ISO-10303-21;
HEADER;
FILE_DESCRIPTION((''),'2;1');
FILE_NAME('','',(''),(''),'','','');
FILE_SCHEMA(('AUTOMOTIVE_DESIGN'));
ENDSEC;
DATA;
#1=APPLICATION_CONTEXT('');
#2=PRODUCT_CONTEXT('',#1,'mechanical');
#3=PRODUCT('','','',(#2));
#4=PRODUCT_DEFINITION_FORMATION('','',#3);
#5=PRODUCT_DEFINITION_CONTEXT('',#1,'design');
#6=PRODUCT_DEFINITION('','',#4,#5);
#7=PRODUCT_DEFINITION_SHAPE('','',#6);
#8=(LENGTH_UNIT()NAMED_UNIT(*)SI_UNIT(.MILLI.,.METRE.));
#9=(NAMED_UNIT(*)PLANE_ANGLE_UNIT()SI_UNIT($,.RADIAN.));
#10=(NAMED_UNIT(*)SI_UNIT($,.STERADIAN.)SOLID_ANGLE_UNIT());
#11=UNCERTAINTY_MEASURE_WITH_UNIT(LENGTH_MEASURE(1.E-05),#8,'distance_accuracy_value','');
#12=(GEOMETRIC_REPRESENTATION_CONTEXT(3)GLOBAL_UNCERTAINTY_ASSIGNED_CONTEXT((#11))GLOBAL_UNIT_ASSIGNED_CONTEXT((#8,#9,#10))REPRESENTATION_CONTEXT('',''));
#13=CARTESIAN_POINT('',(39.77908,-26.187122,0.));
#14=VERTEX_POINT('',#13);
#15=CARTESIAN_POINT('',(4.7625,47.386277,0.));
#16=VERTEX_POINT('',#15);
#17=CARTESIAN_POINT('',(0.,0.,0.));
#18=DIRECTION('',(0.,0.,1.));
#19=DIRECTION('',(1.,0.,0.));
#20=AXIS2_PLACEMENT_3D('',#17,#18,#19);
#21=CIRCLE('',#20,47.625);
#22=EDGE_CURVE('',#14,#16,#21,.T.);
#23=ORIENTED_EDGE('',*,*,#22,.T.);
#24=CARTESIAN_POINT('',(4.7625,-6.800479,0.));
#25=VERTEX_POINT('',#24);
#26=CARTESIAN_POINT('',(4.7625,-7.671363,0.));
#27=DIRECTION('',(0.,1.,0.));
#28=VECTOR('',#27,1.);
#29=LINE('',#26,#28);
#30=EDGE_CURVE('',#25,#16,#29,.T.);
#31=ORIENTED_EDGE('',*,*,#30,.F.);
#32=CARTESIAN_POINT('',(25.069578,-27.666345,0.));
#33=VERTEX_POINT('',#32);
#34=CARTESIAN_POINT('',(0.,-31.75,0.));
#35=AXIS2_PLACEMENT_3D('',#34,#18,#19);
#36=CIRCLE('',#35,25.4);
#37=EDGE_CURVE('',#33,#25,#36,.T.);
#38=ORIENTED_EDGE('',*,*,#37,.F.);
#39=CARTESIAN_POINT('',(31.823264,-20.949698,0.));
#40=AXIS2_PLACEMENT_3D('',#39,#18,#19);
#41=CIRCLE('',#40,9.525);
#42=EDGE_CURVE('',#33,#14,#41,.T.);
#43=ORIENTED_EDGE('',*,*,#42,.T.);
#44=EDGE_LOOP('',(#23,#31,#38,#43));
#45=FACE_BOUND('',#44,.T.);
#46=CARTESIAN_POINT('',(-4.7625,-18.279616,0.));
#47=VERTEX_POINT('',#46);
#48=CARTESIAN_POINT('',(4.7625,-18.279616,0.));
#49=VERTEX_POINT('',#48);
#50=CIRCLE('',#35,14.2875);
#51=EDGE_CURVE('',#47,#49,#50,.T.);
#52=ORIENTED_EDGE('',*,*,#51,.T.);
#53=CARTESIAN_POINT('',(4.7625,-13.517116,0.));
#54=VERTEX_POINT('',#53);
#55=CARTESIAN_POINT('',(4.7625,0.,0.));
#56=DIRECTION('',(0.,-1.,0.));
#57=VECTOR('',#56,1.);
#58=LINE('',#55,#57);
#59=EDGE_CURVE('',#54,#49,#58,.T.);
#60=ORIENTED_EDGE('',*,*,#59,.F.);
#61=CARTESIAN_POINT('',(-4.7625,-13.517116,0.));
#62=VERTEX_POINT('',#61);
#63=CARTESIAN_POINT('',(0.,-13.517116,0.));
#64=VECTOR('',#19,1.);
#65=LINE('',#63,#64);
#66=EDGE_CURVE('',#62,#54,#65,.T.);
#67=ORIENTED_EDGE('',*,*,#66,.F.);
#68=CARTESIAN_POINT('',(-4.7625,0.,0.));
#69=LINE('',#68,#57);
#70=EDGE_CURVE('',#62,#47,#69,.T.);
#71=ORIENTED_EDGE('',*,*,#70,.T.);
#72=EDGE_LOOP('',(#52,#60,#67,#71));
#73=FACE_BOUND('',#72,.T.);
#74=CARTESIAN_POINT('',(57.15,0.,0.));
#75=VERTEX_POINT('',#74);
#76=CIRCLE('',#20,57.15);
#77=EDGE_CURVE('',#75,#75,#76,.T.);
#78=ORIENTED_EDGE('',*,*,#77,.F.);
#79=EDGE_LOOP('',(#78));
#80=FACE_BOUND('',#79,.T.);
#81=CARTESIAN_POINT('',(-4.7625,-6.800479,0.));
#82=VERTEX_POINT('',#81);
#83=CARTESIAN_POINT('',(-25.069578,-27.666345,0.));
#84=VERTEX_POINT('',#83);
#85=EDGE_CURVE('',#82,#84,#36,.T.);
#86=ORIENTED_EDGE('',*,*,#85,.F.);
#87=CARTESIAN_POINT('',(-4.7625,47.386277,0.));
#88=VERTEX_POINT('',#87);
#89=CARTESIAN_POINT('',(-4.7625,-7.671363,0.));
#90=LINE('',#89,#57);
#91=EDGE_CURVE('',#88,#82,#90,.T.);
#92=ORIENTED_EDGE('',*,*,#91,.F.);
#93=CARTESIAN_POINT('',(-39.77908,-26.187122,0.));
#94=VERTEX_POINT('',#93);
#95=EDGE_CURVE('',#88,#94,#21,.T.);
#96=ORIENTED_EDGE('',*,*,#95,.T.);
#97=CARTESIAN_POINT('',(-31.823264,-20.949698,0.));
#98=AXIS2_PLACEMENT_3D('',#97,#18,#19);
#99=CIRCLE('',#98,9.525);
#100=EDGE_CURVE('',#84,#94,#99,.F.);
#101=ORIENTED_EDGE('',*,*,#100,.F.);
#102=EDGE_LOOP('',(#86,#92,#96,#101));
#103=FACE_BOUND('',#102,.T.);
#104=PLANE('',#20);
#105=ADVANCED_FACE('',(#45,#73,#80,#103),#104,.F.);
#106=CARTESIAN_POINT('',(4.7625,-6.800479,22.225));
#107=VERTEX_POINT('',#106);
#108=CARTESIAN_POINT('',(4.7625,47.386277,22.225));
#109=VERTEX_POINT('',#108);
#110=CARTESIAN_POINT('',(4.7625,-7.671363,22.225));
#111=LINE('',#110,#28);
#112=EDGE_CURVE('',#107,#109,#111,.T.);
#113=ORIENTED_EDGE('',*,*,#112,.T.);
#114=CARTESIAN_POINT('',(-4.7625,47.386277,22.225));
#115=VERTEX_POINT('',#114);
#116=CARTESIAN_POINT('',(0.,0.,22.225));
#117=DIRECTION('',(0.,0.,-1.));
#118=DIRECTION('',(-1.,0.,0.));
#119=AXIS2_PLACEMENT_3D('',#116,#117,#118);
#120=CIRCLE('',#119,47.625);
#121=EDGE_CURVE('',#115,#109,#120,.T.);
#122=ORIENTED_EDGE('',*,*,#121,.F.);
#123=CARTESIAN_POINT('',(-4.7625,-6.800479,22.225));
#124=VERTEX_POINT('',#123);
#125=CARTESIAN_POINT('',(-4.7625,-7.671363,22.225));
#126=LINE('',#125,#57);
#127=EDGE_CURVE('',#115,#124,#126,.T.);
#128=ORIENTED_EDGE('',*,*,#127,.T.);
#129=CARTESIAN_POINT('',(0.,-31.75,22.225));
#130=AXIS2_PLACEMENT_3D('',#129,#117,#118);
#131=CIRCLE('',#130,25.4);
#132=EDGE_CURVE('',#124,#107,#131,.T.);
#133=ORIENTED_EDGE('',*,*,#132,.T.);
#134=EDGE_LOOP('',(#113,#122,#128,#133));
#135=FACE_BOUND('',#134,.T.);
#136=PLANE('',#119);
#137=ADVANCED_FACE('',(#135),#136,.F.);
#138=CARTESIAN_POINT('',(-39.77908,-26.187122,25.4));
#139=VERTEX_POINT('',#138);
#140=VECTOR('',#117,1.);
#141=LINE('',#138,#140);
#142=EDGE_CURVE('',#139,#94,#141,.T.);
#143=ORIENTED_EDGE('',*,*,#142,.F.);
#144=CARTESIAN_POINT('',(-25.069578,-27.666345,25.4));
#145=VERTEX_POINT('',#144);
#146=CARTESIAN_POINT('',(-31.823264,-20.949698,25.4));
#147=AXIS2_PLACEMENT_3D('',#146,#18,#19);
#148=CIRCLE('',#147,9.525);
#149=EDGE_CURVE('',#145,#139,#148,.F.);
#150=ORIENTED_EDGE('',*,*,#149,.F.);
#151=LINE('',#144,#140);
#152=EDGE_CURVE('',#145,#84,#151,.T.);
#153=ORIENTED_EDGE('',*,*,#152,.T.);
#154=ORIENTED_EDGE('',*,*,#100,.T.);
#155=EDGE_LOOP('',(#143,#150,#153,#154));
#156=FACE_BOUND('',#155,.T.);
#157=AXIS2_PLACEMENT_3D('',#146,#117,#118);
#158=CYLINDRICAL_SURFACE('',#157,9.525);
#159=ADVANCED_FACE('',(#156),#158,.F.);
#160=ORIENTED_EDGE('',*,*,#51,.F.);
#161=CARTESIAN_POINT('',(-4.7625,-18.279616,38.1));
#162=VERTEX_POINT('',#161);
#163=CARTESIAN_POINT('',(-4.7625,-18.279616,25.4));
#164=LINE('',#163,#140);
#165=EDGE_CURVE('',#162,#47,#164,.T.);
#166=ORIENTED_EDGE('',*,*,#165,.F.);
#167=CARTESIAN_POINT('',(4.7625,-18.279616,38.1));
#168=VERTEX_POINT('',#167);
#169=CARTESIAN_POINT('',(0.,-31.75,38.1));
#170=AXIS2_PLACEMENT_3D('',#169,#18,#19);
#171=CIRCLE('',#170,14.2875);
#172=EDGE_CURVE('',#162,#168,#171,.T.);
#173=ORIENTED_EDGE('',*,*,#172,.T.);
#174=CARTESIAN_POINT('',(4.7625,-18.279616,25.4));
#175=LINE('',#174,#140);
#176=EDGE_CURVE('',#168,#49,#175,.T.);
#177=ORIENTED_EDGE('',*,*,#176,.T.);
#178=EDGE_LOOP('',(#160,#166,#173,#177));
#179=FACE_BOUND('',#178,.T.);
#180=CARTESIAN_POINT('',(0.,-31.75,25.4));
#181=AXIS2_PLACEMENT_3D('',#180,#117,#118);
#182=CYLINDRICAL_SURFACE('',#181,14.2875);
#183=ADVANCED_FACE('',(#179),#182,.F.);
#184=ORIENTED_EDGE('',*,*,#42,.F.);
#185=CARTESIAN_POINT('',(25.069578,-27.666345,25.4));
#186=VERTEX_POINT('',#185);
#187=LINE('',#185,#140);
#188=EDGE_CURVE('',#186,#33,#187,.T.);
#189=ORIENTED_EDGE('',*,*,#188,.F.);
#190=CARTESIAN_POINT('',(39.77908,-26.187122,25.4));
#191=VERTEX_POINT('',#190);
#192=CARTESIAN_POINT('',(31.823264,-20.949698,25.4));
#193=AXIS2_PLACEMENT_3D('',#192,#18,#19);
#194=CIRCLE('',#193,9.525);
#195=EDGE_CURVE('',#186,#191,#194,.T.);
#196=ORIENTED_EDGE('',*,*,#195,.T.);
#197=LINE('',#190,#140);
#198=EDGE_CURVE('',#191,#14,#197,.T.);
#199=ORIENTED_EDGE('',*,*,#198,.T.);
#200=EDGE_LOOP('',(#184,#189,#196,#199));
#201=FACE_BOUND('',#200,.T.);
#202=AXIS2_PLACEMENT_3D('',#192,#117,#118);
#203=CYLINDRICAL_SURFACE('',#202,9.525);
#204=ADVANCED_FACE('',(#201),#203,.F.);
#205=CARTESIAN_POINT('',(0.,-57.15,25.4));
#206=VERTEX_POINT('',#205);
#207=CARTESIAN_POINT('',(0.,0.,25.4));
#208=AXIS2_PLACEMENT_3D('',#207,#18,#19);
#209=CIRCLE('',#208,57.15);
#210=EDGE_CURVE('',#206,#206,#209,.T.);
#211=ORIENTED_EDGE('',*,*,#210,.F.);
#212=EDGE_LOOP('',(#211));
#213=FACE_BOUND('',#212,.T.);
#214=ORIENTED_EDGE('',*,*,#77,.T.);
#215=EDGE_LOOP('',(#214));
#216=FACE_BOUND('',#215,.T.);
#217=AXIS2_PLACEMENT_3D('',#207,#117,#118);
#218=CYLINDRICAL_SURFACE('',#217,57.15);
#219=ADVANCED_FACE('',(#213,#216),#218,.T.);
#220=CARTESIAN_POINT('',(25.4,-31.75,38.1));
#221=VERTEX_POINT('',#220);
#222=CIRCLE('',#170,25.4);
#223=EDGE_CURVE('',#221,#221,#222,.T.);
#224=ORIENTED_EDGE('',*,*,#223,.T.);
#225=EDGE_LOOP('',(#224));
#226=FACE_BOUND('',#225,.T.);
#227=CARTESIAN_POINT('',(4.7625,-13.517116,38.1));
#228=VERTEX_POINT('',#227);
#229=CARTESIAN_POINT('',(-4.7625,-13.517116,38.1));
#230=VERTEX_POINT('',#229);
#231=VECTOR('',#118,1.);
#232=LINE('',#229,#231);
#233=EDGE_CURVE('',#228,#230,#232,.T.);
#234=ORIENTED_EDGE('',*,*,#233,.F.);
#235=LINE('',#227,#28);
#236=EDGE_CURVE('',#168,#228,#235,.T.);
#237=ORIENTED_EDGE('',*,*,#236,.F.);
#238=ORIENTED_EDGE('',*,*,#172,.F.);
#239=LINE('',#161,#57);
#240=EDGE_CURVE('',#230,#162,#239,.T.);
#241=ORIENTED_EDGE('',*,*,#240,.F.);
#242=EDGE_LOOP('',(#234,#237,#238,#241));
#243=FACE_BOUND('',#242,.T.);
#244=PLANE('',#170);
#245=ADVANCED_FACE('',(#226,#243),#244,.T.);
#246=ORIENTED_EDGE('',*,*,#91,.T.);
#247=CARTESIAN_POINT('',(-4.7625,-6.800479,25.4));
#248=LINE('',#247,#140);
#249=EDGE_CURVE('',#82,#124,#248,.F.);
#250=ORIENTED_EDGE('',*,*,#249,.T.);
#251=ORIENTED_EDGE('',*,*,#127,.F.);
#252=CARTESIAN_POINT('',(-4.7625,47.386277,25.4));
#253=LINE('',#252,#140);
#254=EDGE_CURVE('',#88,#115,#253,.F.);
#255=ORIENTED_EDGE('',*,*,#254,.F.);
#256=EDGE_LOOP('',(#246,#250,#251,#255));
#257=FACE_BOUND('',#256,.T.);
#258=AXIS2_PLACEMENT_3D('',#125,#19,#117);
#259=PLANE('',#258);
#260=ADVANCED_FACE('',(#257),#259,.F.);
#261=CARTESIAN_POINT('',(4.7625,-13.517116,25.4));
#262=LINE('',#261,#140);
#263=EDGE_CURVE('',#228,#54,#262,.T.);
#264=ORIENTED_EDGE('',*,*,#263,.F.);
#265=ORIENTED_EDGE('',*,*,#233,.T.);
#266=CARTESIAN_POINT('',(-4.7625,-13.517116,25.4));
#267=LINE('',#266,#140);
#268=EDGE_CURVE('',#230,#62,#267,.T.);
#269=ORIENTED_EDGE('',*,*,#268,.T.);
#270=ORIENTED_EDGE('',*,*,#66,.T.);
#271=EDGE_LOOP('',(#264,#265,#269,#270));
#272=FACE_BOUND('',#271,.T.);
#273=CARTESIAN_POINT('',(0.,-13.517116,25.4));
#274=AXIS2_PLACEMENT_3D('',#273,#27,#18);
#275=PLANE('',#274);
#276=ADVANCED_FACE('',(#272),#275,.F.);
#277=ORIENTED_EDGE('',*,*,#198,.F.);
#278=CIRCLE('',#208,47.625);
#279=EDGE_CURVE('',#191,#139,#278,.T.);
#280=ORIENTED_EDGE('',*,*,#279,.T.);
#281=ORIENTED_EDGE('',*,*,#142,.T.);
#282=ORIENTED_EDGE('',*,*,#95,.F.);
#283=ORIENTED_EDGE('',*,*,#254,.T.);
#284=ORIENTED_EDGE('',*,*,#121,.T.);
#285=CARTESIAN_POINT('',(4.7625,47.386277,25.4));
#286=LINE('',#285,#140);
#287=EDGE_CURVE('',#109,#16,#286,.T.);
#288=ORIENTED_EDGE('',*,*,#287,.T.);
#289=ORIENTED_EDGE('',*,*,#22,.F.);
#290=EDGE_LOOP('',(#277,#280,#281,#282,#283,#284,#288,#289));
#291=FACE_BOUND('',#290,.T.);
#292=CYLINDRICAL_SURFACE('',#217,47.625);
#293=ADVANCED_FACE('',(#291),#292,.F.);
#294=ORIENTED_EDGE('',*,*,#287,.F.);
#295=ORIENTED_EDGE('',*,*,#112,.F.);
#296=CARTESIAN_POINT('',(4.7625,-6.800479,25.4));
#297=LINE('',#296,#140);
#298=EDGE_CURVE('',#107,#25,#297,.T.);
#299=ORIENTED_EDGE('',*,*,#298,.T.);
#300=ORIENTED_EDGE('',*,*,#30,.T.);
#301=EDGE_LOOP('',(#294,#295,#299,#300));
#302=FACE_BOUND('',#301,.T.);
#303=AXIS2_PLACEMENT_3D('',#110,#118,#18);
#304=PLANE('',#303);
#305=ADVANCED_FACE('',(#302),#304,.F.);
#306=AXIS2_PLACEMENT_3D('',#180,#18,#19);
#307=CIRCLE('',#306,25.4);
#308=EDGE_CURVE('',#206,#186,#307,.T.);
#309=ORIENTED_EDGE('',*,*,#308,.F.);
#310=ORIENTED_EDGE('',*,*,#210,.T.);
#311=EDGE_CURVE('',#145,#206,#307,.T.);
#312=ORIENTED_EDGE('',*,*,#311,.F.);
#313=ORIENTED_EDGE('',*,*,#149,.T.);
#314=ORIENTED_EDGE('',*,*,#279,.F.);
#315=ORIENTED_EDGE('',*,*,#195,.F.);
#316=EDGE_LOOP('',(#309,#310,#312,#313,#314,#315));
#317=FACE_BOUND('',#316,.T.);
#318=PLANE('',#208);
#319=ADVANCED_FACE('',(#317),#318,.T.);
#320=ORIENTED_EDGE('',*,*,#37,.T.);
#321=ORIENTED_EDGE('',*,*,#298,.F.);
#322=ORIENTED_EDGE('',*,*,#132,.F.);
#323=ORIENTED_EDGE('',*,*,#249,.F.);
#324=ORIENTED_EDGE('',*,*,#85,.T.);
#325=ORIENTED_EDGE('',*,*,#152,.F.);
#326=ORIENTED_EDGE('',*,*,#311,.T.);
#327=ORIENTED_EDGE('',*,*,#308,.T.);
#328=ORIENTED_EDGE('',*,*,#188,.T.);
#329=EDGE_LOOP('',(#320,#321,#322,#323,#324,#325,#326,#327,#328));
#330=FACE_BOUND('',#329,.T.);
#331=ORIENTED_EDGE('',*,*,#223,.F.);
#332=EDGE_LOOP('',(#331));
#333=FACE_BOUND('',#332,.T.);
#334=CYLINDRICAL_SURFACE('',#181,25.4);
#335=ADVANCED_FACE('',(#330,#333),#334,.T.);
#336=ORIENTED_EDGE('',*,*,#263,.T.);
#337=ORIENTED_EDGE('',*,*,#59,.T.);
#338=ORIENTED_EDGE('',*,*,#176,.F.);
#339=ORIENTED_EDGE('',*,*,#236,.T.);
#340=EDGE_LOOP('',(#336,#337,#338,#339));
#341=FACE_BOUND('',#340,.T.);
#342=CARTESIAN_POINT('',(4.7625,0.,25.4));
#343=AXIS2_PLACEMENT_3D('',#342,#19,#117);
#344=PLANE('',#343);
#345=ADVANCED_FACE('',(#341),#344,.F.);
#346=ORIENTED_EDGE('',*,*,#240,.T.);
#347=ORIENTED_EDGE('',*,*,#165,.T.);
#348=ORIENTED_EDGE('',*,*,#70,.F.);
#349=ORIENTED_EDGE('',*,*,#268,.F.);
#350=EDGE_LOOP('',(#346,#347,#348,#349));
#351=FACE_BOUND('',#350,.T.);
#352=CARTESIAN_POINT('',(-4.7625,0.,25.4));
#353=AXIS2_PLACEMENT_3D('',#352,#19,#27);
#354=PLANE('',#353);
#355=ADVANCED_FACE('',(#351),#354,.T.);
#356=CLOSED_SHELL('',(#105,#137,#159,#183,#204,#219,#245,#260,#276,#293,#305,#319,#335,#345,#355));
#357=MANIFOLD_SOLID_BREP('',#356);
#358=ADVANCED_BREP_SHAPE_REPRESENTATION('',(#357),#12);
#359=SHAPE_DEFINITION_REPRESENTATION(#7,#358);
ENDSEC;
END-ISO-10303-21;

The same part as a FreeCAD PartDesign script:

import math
import FreeCAD as App
import Part
import Sketcher

V = App.Vector
Q = App.Units.Quantity

doc = App.newDocument("Part")
params = doc.addObject("Spreadsheet::Sheet", "Params")
for row, (alias, value) in enumerate([
    ("sketch1_radius", "1 in"),
    ("sketch1_diameter", "4.5 in"),
    ("sketch1_radius2", "0.5625 in"),
    ("sketch1_radius3", "0.375 in"),
    ("sketch1_radius4", "1.875 in"),
    ("pad1_length", "1 in"),
    ("sketch2_diameter", "2 in"),
    ("sketch2_radius", "0.5625 in"),
    ("sketch2_width", "0.375 in"),
    ("sketch2_height", "0.1875 in"),
    ("pad2_length", "0.5 in"),
    ("sketch3_width", "0.375 in"),
    ("pad3_length", "0.875 in"),
], start=1):
    params.set(f"A{row}", alias)
    params.set(f"B{row}", "=" + value)
    params.setAlias(f"B{row}", alias)

body = doc.addObject("PartDesign::Body", "Body")

sketch1 = doc.addObject("Sketcher::SketchObject", "Sketch")
body.addObject(sketch1)
sketch1.AttachmentSupport = (doc.XY_Plane, [""])
sketch1.MapMode = "FlatFace"
sketch1.addGeometry(Part.Circle(V(0, 0, 0), V(0, 0, 1), 57.1), False)
sketch1.addGeometry(Part.ArcOfCircle(Part.Circle(V(0, -31.8, 0), V(0, 0, 1), 14.3), math.radians(109), math.radians(431)), False)
sketch1.addGeometry(Part.LineSegment(V(-4.8, -18.3, 0), V(-4.8, -13.5, 0)), False)
sketch1.addGeometry(Part.LineSegment(V(-4.8, -13.5, 0), V(4.8, -13.5, 0)), False)
sketch1.addGeometry(Part.LineSegment(V(4.8, -13.5, 0), V(4.8, -18.3, 0)), False)
sketch1.addGeometry(Part.ArcOfCircle(Part.Circle(V(0, -31.8, 0), V(0, 0, 1), 25.4), math.radians(9), math.radians(171)), False)
sketch1.addGeometry(Part.ArcOfCircle(Part.Circle(V(-31.8, -20.9, 0), V(0, 0, 1), 9.5), math.radians(-147), math.radians(-45)), False)
sketch1.addGeometry(Part.ArcOfCircle(Part.Circle(V(0, 0, 0), V(0, 0, 1), 47.6), math.radians(180), math.radians(213)), False)
sketch1.addGeometry(Part.ArcOfCircle(Part.Circle(V(0, 0, 0), V(0, 0, 1), 47.6), math.radians(0), math.radians(180)), False)
sketch1.addGeometry(Part.ArcOfCircle(Part.Circle(V(0, 0, 0), V(0, 0, 1), 47.6), math.radians(-33), math.radians(0)), False)
sketch1.addGeometry(Part.ArcOfCircle(Part.Circle(V(31.8, -20.9, 0), V(0, 0, 1), 9.5), math.radians(-135), math.radians(-33)), False)
sketch1.addConstraint(Sketcher.Constraint("Coincident", 1, 1, 2, 1))
sketch1.addConstraint(Sketcher.Constraint("Coincident", 2, 2, 3, 1))
sketch1.addConstraint(Sketcher.Constraint("Coincident", 3, 2, 4, 1))
sketch1.addConstraint(Sketcher.Constraint("Coincident", 4, 2, 1, 2))
sketch1.addConstraint(Sketcher.Constraint("Coincident", 5, 2, 6, 2))
sketch1.addConstraint(Sketcher.Constraint("Tangent", 6, 1, 7, 2))
sketch1.addConstraint(Sketcher.Constraint("Tangent", 7, 1, 8, 2))
sketch1.addConstraint(Sketcher.Constraint("Tangent", 8, 1, 9, 2))
sketch1.addConstraint(Sketcher.Constraint("Tangent", 9, 1, 10, 2))
sketch1.addConstraint(Sketcher.Constraint("Coincident", 10, 1, 5, 1))
sketch1.addConstraint(Sketcher.Constraint("Vertical", 2))
sketch1.addConstraint(Sketcher.Constraint("Horizontal", 3))
sketch1.addConstraint(Sketcher.Constraint("Vertical", 4))
sketch1.addConstraint(Sketcher.Constraint("Coincident", 0, 3, -1, 1))
sketch1.addConstraint(Sketcher.Constraint("Coincident", 7, 3, -1, 1))
sketch1.addConstraint(Sketcher.Constraint("Coincident", 5, 3, 1, 3))
sketch1.addConstraint(Sketcher.Constraint("Equal", 7, 8))
sketch1.addConstraint(Sketcher.Constraint("Equal", 8, 9))
sketch1.addConstraint(Sketcher.Constraint("Equal", 6, 10))
sketch1.addConstraint(Sketcher.Constraint("Symmetric", 1, 1, 4, 2, -2))
sketch1.addConstraint(Sketcher.Constraint("PointOnObject", 7, 1, -1))
sketch1.addConstraint(Sketcher.Constraint("PointOnObject", 8, 1, -1))
sketch1.addConstraint(Sketcher.Constraint("Horizontal", 6, 3, 10, 3))
sketch1.addConstraint(Sketcher.Constraint("Radius", 5, Q("1 in")))
sketch1.addConstraint(Sketcher.Constraint("Diameter", 0, Q("4.5 in")))
sketch1.addConstraint(Sketcher.Constraint("Radius", 1, Q("0.5625 in")))
sketch1.addConstraint(Sketcher.Constraint("Radius", 6, Q("0.375 in")))
sketch1.addConstraint(Sketcher.Constraint("Radius", 7, Q("1.875 in")))
sketch1.addConstraint(Sketcher.Constraint("DistanceX", 3, 1, 3, 2, Q("0.375 in")))
sketch1.addConstraint(Sketcher.Constraint("DistanceY", 2, 1, 2, 2, Q("0.1875 in")))
sketch1.addConstraint(Sketcher.Constraint("DistanceY", 1, 3, -1, 1, Q("1.25 in")))
sketch1.addConstraint(Sketcher.Constraint("DistanceX", 6, 1, 5, 2, 14.709502))
sketch1.setExpression("Constraints[23]", "Params.sketch1_radius")
sketch1.setExpression("Constraints[24]", "Params.sketch1_diameter")
sketch1.setExpression("Constraints[25]", "Params.sketch1_radius2")
sketch1.setExpression("Constraints[26]", "Params.sketch1_radius3")
sketch1.setExpression("Constraints[27]", "Params.sketch1_radius4")
pad1 = doc.addObject("PartDesign::Pad", "Pad")
body.addObject(pad1)
pad1.Profile = sketch1
pad1.setExpression("Length", "Params.pad1_length")

sketch2 = doc.addObject("Sketcher::SketchObject", "Sketch001")
body.addObject(sketch2)
sketch2.AttachmentSupport = (doc.XY_Plane, [""])
sketch2.MapMode = "FlatFace"
sketch2.AttachmentOffset = App.Placement(V(0, 0, 1 * 25.4), App.Rotation())
sketch2.addGeometry(Part.Circle(V(0, -31.8, 0), V(0, 0, 1), 25.4), False)
sketch2.addGeometry(Part.ArcOfCircle(Part.Circle(V(0, -31.8, 0), V(0, 0, 1), 14.3), math.radians(109), math.radians(431)), False)
sketch2.addGeometry(Part.LineSegment(V(-4.8, -18.3, 0), V(-4.8, -13.5, 0)), False)
sketch2.addGeometry(Part.LineSegment(V(-4.8, -13.5, 0), V(4.8, -13.5, 0)), False)
sketch2.addGeometry(Part.LineSegment(V(4.8, -13.5, 0), V(4.8, -18.3, 0)), False)
sketch2.addConstraint(Sketcher.Constraint("Coincident", 1, 1, 2, 1))
sketch2.addConstraint(Sketcher.Constraint("Coincident", 2, 2, 3, 1))
sketch2.addConstraint(Sketcher.Constraint("Coincident", 3, 2, 4, 1))
sketch2.addConstraint(Sketcher.Constraint("Coincident", 4, 2, 1, 2))
sketch2.addConstraint(Sketcher.Constraint("Vertical", 2))
sketch2.addConstraint(Sketcher.Constraint("Horizontal", 3))
sketch2.addConstraint(Sketcher.Constraint("Vertical", 4))
sketch2.addConstraint(Sketcher.Constraint("Coincident", 1, 3, 0, 3))
sketch2.addConstraint(Sketcher.Constraint("Symmetric", 1, 1, 4, 2, -2))
sketch2.addConstraint(Sketcher.Constraint("Diameter", 0, Q("2 in")))
sketch2.addConstraint(Sketcher.Constraint("Radius", 1, Q("0.5625 in")))
sketch2.addConstraint(Sketcher.Constraint("DistanceX", 3, 1, 3, 2, Q("0.375 in")))
sketch2.addConstraint(Sketcher.Constraint("DistanceY", 2, 1, 2, 2, Q("0.1875 in")))
sketch2.addConstraint(Sketcher.Constraint("DistanceY", 0, 3, -1, 1, Q("1.25 in")))
sketch2.setExpression("Constraints[9]", "Params.sketch2_diameter")
sketch2.setExpression("Constraints[10]", "Params.sketch2_radius")
sketch2.setExpression("Constraints[11]", "Params.sketch2_width")
sketch2.setExpression("Constraints[12]", "Params.sketch2_height")
pad2 = doc.addObject("PartDesign::Pad", "Pad001")
body.addObject(pad2)
pad2.Profile = sketch2
pad2.setExpression("Length", "Params.pad2_length")

sketch3 = doc.addObject("Sketcher::SketchObject", "Sketch002")
body.addObject(sketch3)
sketch3.AttachmentSupport = (doc.XY_Plane, [""])
sketch3.MapMode = "FlatFace"
sketch3.addGeometry(Part.LineSegment(V(-5, 49, 0), V(-5, -8, 0)), False)
sketch3.addGeometry(Part.LineSegment(V(-5, -8, 0), V(5, -8, 0)), False)
sketch3.addGeometry(Part.LineSegment(V(5, -8, 0), V(5, 49, 0)), False)
sketch3.addGeometry(Part.LineSegment(V(5, 49, 0), V(-5, 49, 0)), False)
sketch3.addConstraint(Sketcher.Constraint("Coincident", 0, 2, 1, 1))
sketch3.addConstraint(Sketcher.Constraint("Coincident", 1, 2, 2, 1))
sketch3.addConstraint(Sketcher.Constraint("Coincident", 2, 2, 3, 1))
sketch3.addConstraint(Sketcher.Constraint("Coincident", 3, 2, 0, 1))
sketch3.addConstraint(Sketcher.Constraint("Vertical", 0))
sketch3.addConstraint(Sketcher.Constraint("Horizontal", 1))
sketch3.addConstraint(Sketcher.Constraint("Vertical", 2))
sketch3.addConstraint(Sketcher.Constraint("Horizontal", 3))
sketch3.addConstraint(Sketcher.Constraint("DistanceX", 1, 1, 1, 2, Q("0.375 in")))
sketch3.addConstraint(Sketcher.Constraint("DistanceX", 0, 2, -1, 1, Q("0.1875 in")))
sketch3.addConstraint(Sketcher.Constraint("DistanceY", 0, 2, 0, 1, 56.448043))
sketch3.addConstraint(Sketcher.Constraint("DistanceY", -1, 1, 2, 2, 48.77668))
sketch3.setExpression("Constraints[8]", "Params.sketch3_width")
pad3 = doc.addObject("PartDesign::Pad", "Pad002")
body.addObject(pad3)
pad3.Profile = sketch3
pad3.setExpression("Length", "Params.pad3_length")

doc.recompute()
